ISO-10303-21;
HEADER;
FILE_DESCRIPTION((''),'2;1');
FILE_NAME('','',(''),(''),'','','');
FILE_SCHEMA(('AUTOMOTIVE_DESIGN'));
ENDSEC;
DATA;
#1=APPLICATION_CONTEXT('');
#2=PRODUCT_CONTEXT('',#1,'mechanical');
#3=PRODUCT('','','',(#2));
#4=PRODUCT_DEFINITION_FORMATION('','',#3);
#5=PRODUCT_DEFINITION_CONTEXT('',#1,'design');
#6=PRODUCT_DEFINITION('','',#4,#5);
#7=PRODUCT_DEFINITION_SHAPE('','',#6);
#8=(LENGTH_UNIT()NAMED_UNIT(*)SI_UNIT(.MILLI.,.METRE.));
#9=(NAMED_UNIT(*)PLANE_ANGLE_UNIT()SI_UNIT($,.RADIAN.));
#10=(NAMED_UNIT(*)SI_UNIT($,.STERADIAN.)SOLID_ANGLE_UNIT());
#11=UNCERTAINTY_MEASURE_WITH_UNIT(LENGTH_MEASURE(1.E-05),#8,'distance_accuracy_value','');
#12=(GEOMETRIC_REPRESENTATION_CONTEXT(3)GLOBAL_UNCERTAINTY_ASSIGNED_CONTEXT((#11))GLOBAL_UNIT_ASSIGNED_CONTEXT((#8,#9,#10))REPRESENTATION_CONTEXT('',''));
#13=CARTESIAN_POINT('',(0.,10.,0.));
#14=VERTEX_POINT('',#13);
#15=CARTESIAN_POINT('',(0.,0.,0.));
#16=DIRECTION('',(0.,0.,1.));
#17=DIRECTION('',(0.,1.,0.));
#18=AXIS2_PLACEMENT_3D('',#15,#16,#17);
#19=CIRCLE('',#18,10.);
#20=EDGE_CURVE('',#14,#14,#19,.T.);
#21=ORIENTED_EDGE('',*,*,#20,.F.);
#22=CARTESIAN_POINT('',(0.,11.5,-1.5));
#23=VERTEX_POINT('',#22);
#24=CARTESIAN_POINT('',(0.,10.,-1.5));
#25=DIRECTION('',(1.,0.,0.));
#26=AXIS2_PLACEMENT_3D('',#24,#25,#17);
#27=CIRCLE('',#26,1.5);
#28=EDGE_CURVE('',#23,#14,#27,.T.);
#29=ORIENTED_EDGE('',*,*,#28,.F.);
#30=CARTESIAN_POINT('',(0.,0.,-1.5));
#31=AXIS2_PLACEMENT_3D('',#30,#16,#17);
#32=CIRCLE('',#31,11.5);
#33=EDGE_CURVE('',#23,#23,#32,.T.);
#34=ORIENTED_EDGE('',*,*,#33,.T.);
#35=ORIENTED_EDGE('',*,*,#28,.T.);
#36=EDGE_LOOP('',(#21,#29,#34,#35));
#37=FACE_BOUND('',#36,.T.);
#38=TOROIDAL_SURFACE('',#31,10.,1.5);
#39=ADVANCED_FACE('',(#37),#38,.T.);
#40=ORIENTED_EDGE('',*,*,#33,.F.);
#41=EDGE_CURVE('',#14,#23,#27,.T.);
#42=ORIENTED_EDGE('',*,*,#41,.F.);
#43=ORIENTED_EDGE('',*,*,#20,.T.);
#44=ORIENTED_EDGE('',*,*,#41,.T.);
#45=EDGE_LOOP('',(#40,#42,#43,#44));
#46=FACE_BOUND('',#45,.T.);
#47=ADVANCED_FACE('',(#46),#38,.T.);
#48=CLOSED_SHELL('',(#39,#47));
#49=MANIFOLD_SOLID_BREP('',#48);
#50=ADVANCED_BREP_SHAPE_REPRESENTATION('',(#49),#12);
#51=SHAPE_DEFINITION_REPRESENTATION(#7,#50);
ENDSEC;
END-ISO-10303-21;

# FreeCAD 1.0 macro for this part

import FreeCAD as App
import Part
import Sketcher

doc = App.newDocument("Part")
body = doc.addObject("PartDesign::Body", "Body")

# Sketch on YZ plane
sketch1 = body.newObject("Sketcher::SketchObject", "Sketch")
sketch1.AttachmentSupport = (doc.getObject("YZ_Plane"), [""])
sketch1.MapMode = "FlatFace"
sketch1.addGeometry(Part.Circle(App.Vector(10, -1.5, 0), App.Vector(0, 0, 1), 1.5), False)
sketch1.addConstraint([
    Sketcher.Constraint("Diameter", 0, 3.0),
    Sketcher.Constraint("DistanceX", -1, 1, 0, 3, 10.0),
    Sketcher.Constraint("DistanceY", 0, 3, -1, 1, 1.5),
])
revolution = body.newObject("PartDesign::Revolution", "Revolution")
revolution.Profile = sketch1
revolution.ReferenceAxis = (sketch1, ["V_Axis"])
revolution.Angle = 360

doc.recompute()
